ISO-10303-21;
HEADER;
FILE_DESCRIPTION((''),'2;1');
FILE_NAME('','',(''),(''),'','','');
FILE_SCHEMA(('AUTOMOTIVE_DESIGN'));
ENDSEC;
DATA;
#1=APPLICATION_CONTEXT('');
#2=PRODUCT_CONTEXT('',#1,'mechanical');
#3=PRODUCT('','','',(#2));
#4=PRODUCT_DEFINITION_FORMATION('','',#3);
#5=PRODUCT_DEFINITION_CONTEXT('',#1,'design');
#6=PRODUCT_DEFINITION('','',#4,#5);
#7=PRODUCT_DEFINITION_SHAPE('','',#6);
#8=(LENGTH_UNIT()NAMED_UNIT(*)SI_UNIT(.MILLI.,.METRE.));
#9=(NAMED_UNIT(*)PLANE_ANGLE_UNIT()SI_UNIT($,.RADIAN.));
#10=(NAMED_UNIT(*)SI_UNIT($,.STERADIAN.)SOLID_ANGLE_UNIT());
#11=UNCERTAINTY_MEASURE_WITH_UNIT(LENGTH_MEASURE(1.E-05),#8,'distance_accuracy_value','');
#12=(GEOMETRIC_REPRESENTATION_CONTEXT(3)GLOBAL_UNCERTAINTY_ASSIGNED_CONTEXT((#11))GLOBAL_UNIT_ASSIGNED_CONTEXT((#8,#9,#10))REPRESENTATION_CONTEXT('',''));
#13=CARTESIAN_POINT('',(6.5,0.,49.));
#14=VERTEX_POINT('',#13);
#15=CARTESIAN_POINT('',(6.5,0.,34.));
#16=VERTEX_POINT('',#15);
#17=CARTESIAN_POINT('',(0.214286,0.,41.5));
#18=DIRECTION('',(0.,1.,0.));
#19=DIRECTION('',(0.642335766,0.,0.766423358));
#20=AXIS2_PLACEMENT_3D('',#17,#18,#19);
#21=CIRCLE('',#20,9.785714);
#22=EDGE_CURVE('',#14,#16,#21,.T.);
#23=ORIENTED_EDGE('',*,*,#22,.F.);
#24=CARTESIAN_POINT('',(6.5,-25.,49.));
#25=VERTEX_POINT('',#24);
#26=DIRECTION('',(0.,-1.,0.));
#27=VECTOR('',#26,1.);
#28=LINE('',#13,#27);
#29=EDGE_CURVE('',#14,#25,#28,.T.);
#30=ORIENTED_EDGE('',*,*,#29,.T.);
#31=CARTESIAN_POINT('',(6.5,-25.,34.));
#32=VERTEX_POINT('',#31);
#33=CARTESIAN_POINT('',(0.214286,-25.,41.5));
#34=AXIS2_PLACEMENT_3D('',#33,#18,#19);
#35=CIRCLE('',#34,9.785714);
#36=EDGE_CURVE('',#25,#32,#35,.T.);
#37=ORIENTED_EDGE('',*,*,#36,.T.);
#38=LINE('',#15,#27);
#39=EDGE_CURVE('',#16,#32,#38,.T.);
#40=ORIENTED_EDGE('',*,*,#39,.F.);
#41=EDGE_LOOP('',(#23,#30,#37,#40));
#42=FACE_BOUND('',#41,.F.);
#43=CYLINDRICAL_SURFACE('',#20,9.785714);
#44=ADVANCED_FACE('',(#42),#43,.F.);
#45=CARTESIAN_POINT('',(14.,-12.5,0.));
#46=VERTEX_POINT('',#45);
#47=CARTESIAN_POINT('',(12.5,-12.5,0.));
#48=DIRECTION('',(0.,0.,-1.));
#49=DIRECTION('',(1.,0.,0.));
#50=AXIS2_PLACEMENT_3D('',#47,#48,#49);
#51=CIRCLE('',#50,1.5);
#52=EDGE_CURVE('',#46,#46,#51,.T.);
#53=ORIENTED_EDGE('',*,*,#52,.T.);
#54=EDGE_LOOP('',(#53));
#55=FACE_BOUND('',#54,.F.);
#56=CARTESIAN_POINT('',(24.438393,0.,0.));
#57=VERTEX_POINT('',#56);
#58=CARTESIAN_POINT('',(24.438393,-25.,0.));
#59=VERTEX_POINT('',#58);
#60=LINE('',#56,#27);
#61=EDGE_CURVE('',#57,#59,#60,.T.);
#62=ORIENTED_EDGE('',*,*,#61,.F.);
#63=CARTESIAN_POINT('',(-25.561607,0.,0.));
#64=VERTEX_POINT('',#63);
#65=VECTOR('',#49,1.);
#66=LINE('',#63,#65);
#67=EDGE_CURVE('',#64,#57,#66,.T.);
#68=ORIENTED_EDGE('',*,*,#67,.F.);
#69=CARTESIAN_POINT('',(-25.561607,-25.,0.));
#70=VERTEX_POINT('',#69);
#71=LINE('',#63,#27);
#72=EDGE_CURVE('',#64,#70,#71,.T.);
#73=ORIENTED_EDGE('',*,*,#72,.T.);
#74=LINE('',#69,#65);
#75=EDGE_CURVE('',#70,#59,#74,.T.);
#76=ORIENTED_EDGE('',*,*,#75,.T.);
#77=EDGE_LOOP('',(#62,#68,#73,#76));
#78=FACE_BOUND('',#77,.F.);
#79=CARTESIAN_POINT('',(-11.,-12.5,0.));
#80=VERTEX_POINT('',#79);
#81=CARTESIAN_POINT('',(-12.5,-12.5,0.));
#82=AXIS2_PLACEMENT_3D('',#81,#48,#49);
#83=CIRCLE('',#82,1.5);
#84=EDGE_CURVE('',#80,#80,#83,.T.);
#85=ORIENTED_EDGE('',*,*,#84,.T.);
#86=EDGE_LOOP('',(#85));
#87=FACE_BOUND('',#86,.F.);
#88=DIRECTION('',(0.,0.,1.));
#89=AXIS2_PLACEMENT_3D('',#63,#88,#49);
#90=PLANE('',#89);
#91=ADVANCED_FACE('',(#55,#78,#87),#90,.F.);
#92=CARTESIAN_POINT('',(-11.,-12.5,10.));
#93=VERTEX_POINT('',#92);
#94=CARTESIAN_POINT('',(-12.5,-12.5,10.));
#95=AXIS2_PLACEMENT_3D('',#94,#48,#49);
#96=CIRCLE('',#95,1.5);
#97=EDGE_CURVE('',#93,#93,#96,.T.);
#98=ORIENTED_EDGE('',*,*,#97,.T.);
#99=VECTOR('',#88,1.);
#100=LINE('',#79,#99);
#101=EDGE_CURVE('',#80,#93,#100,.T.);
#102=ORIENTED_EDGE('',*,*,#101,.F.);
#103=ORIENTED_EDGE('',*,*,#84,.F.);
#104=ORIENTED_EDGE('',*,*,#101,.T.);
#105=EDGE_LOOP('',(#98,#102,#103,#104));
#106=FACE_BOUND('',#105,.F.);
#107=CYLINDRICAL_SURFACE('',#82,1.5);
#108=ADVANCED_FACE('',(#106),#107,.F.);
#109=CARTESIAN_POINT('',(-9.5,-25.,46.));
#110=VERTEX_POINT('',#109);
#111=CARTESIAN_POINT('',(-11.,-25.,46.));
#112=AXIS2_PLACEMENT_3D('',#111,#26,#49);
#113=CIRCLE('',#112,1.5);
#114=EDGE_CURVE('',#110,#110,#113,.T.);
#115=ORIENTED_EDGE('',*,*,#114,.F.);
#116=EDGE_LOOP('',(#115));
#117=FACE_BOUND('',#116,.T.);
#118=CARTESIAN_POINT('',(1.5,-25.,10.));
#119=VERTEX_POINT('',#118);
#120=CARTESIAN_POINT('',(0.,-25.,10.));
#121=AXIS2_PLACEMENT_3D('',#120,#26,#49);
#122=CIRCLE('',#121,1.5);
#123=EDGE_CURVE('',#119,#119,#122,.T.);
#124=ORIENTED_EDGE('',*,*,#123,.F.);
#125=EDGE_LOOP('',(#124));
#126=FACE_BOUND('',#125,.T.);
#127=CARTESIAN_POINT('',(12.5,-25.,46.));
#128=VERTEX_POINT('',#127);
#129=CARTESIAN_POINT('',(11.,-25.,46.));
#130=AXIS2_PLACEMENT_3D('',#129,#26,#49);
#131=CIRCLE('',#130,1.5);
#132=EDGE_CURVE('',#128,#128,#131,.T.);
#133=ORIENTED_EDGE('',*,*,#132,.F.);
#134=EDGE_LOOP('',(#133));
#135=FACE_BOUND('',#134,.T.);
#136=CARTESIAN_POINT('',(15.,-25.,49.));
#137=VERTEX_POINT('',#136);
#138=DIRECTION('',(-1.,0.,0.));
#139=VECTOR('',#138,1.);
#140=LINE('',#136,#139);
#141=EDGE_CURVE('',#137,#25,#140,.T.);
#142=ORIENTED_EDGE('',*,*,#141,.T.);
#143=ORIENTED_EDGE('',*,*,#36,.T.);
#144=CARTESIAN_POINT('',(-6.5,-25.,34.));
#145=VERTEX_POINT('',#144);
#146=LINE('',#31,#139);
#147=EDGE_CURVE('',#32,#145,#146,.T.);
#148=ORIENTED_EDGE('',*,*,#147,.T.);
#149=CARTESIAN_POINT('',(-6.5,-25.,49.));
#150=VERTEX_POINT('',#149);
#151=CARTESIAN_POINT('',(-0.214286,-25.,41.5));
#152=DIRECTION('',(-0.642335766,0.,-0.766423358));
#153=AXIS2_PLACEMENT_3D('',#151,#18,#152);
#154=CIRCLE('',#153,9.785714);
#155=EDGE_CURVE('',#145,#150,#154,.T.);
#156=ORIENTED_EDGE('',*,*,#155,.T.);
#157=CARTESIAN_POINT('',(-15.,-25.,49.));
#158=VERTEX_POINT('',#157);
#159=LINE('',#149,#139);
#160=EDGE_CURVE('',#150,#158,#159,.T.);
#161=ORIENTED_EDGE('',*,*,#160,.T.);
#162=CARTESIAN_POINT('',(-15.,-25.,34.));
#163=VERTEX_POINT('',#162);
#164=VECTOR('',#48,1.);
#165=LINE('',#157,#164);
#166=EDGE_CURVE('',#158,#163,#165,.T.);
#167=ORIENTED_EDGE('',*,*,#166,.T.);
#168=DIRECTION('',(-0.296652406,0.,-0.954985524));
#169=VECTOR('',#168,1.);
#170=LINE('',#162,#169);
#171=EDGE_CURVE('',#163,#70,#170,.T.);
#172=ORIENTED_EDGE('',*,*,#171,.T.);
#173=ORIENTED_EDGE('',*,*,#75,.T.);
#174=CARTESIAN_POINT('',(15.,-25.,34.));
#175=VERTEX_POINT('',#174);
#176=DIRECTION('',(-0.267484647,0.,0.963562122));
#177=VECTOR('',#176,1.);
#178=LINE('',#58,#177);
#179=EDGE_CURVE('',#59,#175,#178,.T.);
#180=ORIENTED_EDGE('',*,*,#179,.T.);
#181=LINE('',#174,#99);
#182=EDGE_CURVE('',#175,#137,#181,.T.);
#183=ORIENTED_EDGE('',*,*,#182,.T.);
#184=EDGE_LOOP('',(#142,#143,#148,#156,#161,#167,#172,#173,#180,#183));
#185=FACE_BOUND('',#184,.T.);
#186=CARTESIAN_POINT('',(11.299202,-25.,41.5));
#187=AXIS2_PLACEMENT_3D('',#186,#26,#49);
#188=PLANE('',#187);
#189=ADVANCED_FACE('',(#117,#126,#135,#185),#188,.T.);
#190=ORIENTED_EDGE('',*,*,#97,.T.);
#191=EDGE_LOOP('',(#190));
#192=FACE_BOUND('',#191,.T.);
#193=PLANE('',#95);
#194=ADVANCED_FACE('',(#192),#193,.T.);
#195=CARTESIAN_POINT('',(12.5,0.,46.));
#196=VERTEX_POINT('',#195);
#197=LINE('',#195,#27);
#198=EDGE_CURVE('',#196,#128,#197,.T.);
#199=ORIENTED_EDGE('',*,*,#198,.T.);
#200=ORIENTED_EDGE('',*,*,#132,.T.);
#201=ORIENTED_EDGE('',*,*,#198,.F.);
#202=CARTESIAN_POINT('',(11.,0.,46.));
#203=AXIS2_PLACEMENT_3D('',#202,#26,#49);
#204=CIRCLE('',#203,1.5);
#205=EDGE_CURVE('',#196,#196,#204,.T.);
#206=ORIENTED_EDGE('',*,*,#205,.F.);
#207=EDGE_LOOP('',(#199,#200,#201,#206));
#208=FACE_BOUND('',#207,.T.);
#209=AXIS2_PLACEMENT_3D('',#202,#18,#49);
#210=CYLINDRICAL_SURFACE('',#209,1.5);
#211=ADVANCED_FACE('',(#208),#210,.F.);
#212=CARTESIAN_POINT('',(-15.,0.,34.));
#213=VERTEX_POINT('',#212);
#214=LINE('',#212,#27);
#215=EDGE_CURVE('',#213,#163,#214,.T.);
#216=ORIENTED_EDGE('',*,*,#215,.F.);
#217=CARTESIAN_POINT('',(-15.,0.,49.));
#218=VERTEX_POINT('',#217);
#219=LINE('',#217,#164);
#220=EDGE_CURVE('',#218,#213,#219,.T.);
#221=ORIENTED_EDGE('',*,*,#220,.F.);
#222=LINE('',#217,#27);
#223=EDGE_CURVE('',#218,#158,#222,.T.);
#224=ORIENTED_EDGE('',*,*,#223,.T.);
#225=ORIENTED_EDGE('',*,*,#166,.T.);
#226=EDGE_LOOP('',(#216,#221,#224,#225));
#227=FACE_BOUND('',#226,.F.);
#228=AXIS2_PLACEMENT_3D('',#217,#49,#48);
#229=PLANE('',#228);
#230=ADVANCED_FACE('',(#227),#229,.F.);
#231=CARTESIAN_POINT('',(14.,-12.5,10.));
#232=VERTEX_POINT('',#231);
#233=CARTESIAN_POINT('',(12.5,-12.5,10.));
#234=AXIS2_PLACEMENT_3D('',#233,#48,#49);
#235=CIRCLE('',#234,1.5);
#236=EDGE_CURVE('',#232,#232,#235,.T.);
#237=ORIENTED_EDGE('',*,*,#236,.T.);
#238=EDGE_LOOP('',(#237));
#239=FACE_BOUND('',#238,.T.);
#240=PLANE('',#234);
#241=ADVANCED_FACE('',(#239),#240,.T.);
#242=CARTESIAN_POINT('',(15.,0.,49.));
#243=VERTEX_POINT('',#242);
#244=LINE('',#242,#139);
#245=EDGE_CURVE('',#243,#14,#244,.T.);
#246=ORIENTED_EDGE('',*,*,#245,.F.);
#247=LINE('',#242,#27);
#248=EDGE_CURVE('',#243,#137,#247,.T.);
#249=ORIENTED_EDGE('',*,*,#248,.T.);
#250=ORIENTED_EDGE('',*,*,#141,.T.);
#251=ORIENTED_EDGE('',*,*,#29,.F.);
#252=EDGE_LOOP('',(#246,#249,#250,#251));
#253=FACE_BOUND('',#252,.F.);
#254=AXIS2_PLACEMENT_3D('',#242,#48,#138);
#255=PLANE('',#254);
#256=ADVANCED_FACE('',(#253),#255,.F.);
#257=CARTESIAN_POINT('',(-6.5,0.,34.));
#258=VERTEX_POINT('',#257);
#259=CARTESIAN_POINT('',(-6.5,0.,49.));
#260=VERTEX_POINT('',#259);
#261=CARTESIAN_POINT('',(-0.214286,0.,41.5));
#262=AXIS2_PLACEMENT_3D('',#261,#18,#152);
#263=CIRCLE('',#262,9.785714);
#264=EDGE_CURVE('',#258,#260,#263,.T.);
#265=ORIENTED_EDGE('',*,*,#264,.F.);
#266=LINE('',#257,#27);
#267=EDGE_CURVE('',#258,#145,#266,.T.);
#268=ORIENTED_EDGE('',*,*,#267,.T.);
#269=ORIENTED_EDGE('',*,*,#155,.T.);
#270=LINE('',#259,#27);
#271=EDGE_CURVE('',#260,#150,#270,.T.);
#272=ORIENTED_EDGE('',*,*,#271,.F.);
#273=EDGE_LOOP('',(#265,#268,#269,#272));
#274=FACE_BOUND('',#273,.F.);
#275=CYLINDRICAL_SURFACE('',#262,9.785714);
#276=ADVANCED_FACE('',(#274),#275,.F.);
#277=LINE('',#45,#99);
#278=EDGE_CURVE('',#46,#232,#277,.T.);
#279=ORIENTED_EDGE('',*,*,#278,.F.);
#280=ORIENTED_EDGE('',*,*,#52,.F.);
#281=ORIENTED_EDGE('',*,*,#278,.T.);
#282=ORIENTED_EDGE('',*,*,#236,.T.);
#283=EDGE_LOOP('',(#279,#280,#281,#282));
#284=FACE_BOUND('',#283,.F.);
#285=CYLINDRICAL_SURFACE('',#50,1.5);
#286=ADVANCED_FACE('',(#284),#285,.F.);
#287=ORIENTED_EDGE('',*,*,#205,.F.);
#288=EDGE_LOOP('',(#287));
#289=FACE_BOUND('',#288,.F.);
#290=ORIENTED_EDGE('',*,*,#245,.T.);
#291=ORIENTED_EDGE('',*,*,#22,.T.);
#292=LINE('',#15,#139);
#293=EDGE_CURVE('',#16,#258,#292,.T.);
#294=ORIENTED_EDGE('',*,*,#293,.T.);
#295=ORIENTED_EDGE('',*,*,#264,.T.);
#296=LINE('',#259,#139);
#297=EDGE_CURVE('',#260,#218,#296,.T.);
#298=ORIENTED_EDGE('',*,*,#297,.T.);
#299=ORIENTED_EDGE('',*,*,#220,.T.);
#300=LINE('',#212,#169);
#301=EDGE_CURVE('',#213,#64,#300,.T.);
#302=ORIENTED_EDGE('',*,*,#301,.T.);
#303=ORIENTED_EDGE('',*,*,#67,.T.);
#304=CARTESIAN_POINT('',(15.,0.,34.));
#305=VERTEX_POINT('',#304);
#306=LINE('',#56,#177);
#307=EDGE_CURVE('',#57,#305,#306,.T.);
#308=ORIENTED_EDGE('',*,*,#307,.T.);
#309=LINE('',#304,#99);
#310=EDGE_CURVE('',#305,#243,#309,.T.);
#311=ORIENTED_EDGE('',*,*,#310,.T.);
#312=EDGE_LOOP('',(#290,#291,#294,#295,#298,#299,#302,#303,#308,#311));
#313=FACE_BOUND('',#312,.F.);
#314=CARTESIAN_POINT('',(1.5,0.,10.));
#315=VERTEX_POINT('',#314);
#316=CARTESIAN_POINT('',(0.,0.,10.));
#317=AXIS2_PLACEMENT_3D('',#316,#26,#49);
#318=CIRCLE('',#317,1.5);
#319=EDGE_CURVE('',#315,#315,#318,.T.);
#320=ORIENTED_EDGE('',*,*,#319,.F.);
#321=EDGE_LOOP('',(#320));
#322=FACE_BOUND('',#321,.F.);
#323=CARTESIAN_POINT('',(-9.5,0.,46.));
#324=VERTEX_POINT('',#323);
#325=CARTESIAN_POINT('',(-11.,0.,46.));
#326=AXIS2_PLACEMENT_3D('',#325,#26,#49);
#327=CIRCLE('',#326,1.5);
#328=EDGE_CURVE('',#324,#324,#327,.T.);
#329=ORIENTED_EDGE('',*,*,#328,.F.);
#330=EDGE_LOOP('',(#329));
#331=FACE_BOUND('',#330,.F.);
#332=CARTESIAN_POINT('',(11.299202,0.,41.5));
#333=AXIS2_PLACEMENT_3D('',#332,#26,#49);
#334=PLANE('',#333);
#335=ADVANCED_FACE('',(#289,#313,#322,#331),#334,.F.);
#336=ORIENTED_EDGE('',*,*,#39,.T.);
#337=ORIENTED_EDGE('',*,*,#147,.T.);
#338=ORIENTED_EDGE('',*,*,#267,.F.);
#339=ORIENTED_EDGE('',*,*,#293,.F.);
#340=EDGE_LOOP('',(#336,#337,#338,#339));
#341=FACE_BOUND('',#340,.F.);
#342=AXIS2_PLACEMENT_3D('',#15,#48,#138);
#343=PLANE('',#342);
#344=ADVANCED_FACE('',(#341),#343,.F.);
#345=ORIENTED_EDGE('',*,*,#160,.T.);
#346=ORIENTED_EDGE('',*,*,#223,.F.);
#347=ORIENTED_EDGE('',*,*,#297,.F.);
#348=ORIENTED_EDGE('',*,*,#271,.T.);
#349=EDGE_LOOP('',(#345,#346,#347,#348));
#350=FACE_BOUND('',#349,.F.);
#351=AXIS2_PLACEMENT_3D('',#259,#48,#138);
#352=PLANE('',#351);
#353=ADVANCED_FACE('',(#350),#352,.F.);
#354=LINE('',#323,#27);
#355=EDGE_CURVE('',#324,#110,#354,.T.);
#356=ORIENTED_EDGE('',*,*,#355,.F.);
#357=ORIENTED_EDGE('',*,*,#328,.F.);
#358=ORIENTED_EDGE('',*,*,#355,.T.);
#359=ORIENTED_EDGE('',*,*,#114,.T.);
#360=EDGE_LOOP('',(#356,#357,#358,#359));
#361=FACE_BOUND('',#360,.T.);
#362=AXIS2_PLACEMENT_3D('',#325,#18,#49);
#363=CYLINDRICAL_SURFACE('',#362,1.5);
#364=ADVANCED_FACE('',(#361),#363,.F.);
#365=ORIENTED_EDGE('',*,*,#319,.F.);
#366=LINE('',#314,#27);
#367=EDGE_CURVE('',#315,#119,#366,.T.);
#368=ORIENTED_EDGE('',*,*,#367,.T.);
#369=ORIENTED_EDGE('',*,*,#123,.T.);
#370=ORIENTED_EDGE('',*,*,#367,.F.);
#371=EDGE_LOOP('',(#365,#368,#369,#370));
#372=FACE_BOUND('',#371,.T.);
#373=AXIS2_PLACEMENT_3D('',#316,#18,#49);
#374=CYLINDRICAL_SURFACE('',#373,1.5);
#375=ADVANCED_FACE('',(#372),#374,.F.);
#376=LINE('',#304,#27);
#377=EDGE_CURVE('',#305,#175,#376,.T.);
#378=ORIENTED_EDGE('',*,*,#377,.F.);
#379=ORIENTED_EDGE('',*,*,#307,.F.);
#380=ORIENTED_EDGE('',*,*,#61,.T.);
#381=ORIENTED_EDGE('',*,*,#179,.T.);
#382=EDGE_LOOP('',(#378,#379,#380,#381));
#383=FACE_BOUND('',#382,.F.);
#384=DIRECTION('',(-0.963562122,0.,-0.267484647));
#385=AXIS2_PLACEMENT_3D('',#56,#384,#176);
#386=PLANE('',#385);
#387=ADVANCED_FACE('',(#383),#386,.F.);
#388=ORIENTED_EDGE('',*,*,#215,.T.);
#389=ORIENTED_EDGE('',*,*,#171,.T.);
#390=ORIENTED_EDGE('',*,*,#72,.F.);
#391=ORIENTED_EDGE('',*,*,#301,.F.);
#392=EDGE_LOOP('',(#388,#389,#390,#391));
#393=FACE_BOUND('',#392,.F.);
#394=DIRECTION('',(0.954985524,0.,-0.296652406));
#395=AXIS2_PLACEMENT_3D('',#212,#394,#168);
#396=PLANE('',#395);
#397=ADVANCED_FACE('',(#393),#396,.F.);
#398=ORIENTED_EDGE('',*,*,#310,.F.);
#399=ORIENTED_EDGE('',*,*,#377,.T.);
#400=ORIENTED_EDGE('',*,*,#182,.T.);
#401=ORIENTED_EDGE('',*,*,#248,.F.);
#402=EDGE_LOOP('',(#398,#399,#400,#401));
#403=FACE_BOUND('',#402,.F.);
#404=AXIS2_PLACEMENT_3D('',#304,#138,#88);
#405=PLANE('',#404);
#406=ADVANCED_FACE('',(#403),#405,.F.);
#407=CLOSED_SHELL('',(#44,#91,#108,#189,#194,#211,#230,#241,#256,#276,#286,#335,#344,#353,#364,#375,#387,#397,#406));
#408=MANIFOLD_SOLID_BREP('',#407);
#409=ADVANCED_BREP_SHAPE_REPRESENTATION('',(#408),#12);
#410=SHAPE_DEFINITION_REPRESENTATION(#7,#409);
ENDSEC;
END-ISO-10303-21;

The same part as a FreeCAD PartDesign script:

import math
import FreeCAD as App
import Part
import Sketcher

doc = App.newDocument("Part")
body = doc.addObject("PartDesign::Body", "Body")

# Sketch on XZ plane
sketch1 = doc.addObject("Sketcher::SketchObject", "Sketch")
body.addObject(sketch1)
sketch1.AttachmentSupport = (doc.XZ_Plane, [""])
sketch1.MapMode = "FlatFace"
sketch1.addGeometry(Part.ArcOfCircle(Part.Circle(App.Vector(0.2, 41.5, 0), App.Vector(0, 0, 1), 9.8), math.radians(-50), math.radians(50)), False)
sketch1.addGeometry(Part.LineSegment(App.Vector(6.5, 34, 0), App.Vector(-6.5, 34, 0)), False)
sketch1.addGeometry(Part.ArcOfCircle(Part.Circle(App.Vector(-0.2, 41.5, 0), App.Vector(0, 0, 1), 9.8), math.radians(130), math.radians(230)), False)
sketch1.addGeometry(Part.LineSegment(App.Vector(-6.5, 49, 0), App.Vector(-15, 49, 0)), False)
sketch1.addGeometry(Part.LineSegment(App.Vector(-15, 49, 0), App.Vector(-15, 34, 0)), False)
sketch1.addGeometry(Part.LineSegment(App.Vector(-15, 34, 0), App.Vector(-25.6, 0, 0)), False)
sketch1.addGeometry(Part.LineSegment(App.Vector(-25.6, 0, 0), App.Vector(24.4, 0, 0)), False)
sketch1.addGeometry(Part.LineSegment(App.Vector(24.4, 0, 0), App.Vector(15, 34, 0)), False)
sketch1.addGeometry(Part.LineSegment(App.Vector(15, 34, 0), App.Vector(15, 49, 0)), False)
sketch1.addGeometry(Part.LineSegment(App.Vector(15, 49, 0), App.Vector(6.5, 49, 0)), False)
sketch1.addGeometry(Part.Circle(App.Vector(0, 10, 0), App.Vector(0, 0, 1), 1.5), False)
sketch1.addGeometry(Part.Circle(App.Vector(-11, 46, 0), App.Vector(0, 0, 1), 1.5), False)
sketch1.addGeometry(Part.Circle(App.Vector(11, 46, 0), App.Vector(0, 0, 1), 1.5), False)
sketch1.addConstraint(Sketcher.Constraint("Coincident", 0, 1, 1, 1))
sketch1.addConstraint(Sketcher.Constraint("Coincident", 1, 2, 2, 2))
sketch1.addConstraint(Sketcher.Constraint("Coincident", 2, 1, 3, 1))
sketch1.addConstraint(Sketcher.Constraint("Coincident", 3, 2, 4, 1))
sketch1.addConstraint(Sketcher.Constraint("Coincident", 4, 2, 5, 1))
sketch1.addConstraint(Sketcher.Constraint("Coincident", 5, 2, 6, 1))
sketch1.addConstraint(Sketcher.Constraint("Coincident", 6, 2, 7, 1))
sketch1.addConstraint(Sketcher.Constraint("Coincident", 7, 2, 8, 1))
sketch1.addConstraint(Sketcher.Constraint("Coincident", 8, 2, 9, 1))
sketch1.addConstraint(Sketcher.Constraint("Coincident", 9, 2, 0, 2))
sketch1.addConstraint(Sketcher.Constraint("Horizontal", 1))
sketch1.addConstraint(Sketcher.Constraint("Horizontal", 3))
sketch1.addConstraint(Sketcher.Constraint("Vertical", 4))
sketch1.addConstraint(Sketcher.Constraint("Horizontal", 6))
sketch1.addConstraint(Sketcher.Constraint("Vertical", 8))
sketch1.addConstraint(Sketcher.Constraint("Horizontal", 9))
sketch1.addConstraint(Sketcher.Constraint("Equal", 0, 2))
sketch1.addConstraint(Sketcher.Constraint("Equal", 10, 11))
sketch1.addConstraint(Sketcher.Constraint("Equal", 11, 12))
sketch1.addConstraint(Sketcher.Constraint("Symmetric", 0, 3, 2, 3, -2))
sketch1.addConstraint(Sketcher.Constraint("Symmetric", 11, 3, 12, 3, -2))
sketch1.addConstraint(Sketcher.Constraint("Symmetric", 4, 2, 7, 2, -2))
sketch1.addConstraint(Sketcher.Constraint("PointOnObject", 10, 3, -2))
sketch1.addConstraint(Sketcher.Constraint("PointOnObject", 5, 2, -1))
sketch1.addConstraint(Sketcher.Constraint("Horizontal", 1, 2, 4, 2))
sketch1.addConstraint(Sketcher.Constraint("Horizontal", 3, 2, 8, 2))
sketch1.addConstraint(Sketcher.Constraint("Vertical", 1, 2, 2, 1))
sketch1.addConstraint(Sketcher.Constraint("Diameter", 10, 3.0))
sketch1.addConstraint(Sketcher.Constraint("DistanceX", 1, 2, 1, 1, 13.0))
sketch1.addConstraint(Sketcher.Constraint("DistanceX", 6, 1, 6, 2, 50.0))
sketch1.addConstraint(Sketcher.Constraint("DistanceY", 4, 2, 4, 1, 15.0))
sketch1.addConstraint(Sketcher.Constraint("DistanceX", 3, 2, 3, 1, 8.5))
sketch1.addConstraint(Sketcher.Constraint("DistanceY", -1, 1, 10, 3, 10.0))
sketch1.addConstraint(Sketcher.Constraint("DistanceX", 11, 3, -1, 1, 11.0))
sketch1.addConstraint(Sketcher.Constraint("DistanceY", -1, 1, 11, 3, 46.0))
sketch1.addConstraint(Sketcher.Constraint("DistanceY", -1, 1, 0, 1, 34.0))
sketch1.addConstraint(Sketcher.Constraint("Radius", 0, 9.785714))
sketch1.addConstraint(Sketcher.Constraint("Distance", 5, 35.602634))
pad1 = doc.addObject("PartDesign::Pad", "Pad")
body.addObject(pad1)
pad1.Profile = sketch1
pad1.Length = 25

# Sketch on XY plane
sketch2 = doc.addObject("Sketcher::SketchObject", "Sketch001")
body.addObject(sketch2)
sketch2.AttachmentSupport = (doc.XY_Plane, [""])
sketch2.MapMode = "FlatFace"
sketch2.addGeometry(Part.Circle(App.Vector(-12.5, -12.5, 0), App.Vector(0, 0, 1), 1.5), False)
sketch2.addGeometry(Part.Circle(App.Vector(12.5, -12.5, 0), App.Vector(0, 0, 1), 1.5), False)
sketch2.addConstraint(Sketcher.Constraint("Equal", 0, 1))
sketch2.addConstraint(Sketcher.Constraint("Symmetric", 0, 3, 1, 3, -2))
sketch2.addConstraint(Sketcher.Constraint("Diameter", 0, 3.0))
sketch2.addConstraint(Sketcher.Constraint("DistanceX", 0, 3, 1, 3, 25.0))
sketch2.addConstraint(Sketcher.Constraint("DistanceY", 0, 3, -1, 1, 12.5))
pocket1 = doc.addObject("PartDesign::Pocket", "Pocket")
body.addObject(pocket1)
pocket1.Profile = sketch2
pocket1.Length = 10
pocket1.Reversed = True

doc.recompute()
